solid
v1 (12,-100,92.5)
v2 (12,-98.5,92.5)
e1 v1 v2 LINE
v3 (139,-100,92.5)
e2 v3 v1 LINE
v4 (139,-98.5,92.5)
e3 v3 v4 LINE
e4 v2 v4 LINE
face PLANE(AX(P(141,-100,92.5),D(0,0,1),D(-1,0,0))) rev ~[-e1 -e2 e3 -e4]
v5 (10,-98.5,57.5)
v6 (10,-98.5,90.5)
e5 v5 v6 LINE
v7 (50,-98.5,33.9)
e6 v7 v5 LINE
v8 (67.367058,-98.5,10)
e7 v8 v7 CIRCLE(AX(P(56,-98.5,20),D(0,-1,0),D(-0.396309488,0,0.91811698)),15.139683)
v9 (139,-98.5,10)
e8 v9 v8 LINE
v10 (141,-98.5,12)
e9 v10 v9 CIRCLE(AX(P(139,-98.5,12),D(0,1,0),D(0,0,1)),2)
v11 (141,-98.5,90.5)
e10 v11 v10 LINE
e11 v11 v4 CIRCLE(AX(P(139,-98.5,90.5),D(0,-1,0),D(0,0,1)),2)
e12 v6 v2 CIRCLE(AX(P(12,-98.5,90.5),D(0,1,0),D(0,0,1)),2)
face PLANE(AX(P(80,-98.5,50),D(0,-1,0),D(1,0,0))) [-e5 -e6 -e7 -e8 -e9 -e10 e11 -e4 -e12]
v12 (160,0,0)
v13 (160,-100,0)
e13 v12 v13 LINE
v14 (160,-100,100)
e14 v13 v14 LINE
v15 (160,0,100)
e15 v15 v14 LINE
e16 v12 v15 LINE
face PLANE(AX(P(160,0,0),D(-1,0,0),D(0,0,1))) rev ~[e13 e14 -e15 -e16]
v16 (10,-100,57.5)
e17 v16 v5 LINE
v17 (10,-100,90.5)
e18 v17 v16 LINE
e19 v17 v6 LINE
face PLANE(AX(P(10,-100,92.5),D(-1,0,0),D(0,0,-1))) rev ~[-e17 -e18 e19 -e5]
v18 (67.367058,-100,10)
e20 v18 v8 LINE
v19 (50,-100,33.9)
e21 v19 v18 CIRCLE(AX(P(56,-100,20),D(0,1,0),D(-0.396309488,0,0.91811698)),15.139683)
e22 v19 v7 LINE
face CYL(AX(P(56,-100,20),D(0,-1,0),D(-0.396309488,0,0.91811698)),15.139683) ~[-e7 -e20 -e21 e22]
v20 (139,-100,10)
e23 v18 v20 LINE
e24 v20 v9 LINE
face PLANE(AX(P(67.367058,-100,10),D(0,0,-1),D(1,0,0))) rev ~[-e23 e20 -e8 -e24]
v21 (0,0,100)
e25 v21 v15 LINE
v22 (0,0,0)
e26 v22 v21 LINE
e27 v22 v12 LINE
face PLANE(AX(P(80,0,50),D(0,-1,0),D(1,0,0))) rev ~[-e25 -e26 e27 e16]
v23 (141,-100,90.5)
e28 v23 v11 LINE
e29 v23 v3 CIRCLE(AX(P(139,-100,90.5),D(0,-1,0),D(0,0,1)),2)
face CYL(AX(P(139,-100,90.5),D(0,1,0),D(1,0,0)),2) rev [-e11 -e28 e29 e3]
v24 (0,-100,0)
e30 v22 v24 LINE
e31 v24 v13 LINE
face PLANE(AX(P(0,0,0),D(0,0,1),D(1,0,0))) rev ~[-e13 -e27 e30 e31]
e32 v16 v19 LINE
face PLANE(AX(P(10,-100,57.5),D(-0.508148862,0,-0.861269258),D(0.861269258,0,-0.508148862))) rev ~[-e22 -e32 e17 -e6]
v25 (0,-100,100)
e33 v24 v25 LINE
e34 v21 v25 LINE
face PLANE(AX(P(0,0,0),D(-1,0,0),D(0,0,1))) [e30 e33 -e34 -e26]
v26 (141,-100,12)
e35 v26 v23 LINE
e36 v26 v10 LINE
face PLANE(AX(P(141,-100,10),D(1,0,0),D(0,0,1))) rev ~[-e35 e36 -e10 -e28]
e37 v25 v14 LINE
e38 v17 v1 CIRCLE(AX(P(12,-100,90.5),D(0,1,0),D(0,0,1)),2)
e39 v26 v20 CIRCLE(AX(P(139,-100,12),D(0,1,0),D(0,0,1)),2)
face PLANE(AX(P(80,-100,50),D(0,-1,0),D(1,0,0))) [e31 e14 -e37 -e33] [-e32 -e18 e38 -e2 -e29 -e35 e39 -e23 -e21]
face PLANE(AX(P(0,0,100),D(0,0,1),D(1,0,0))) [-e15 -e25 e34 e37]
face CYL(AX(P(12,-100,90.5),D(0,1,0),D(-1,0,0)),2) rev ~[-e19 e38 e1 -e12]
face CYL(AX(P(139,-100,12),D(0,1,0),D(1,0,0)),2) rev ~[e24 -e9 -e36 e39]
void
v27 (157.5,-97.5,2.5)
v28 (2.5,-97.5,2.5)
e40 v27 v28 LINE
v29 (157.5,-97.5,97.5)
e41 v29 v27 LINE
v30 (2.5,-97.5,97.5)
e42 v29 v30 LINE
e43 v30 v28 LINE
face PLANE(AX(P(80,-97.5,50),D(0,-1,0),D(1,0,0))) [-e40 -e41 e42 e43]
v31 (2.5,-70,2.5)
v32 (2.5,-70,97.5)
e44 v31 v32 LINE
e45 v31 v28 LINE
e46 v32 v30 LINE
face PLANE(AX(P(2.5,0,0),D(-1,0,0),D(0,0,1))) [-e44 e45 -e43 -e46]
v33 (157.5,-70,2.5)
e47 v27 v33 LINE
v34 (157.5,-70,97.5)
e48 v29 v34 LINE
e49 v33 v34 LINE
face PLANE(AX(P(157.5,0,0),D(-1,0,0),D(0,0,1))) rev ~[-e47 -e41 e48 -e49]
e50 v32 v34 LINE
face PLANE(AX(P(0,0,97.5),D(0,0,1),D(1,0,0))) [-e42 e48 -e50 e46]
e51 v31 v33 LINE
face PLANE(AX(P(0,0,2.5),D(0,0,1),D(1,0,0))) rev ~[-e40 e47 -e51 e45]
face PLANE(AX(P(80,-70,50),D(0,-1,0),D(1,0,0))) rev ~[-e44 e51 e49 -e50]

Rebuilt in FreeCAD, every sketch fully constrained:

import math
import FreeCAD as App
import Part
import Sketcher


def edges_at(feature, points):
    """Names of the edges that pass closest to the given points."""
    edges = feature.Shape.Edges
    near = lambda p: min(range(len(edges)), key=lambda i: edges[i].distToShape(Part.Vertex(*p))[0])
    return sorted({f"Edge{near(p) + 1}" for p in points})


def faces_at(feature, points):
    """Names of the faces that lie closest to the given points."""
    faces = feature.Shape.Faces
    near = lambda p: min(range(len(faces)), key=lambda i: faces[i].distToShape(Part.Vertex(*p))[0])
    return sorted({f"Face{near(p) + 1}" for p in points})

doc = App.newDocument("Part")
body = doc.addObject("PartDesign::Body", "Body")

# Sketch on XZ plane
sketch1 = doc.addObject("Sketcher::SketchObject", "Sketch")
body.addObject(sketch1)
sketch1.AttachmentSupport = (doc.XZ_Plane, [""])
sketch1.MapMode = "FlatFace"
sketch1.addGeometry([
    Part.LineSegment(App.Vector(0, 100, 0), App.Vector(0, 0, 0)),
    Part.LineSegment(App.Vector(0, 0, 0), App.Vector(160, 0, 0)),
    Part.LineSegment(App.Vector(160, 0, 0), App.Vector(160, 100, 0)),
    Part.LineSegment(App.Vector(160, 100, 0), App.Vector(0, 100, 0)),
], False)
sketch1.addConstraint([
    Sketcher.Constraint("Coincident", 0, 2, 1, 1),
    Sketcher.Constraint("Coincident", 1, 2, 2, 1),
    Sketcher.Constraint("Coincident", 2, 2, 3, 1),
    Sketcher.Constraint("Coincident", 3, 2, 0, 1),
    Sketcher.Constraint("Vertical", 0),
    Sketcher.Constraint("Horizontal", 1),
    Sketcher.Constraint("Vertical", 2),
    Sketcher.Constraint("Horizontal", 3),
    Sketcher.Constraint("Coincident", 0, 2, -1, 1),
    Sketcher.Constraint("DistanceX", 1, 1, 1, 2, 160.0),
    Sketcher.Constraint("DistanceY", 0, 2, 0, 1, 100.0),
])
pad1 = doc.addObject("PartDesign::Pad", "Pad")
body.addObject(pad1)
pad1.Profile = sketch1
pad1.Length = 100

# Sketch on XZ plane
sketch2 = doc.addObject("Sketcher::SketchObject", "Sketch001")
body.addObject(sketch2)
sketch2.AttachmentSupport = (doc.XZ_Plane, [""])
sketch2.MapMode = "FlatFace"
sketch2.AttachmentOffset = App.Placement(App.Vector(0, 0, 100), App.Rotation())
sketch2.addGeometry([
    Part.LineSegment(App.Vector(141, 10, 0), App.Vector(141, 92.5, 0)),  # 0
    Part.LineSegment(App.Vector(141, 92.5, 0), App.Vector(10, 92.5, 0)),  # 1
    Part.LineSegment(App.Vector(10, 92.5, 0), App.Vector(10, 57.5, 0)),  # 2
    Part.LineSegment(App.Vector(10, 57.5, 0), App.Vector(50, 33.9, 0)),  # 3
    Part.ArcOfCircle(Part.Circle(App.Vector(56, 20, 0), App.Vector(0, 0, 1), 15.139683), math.radians(-41.339224), math.radians(113.347669)),  # 4
    Part.LineSegment(App.Vector(67.367058, 10, 0), App.Vector(141, 10, 0)),  # 5
], False)
sketch2.addConstraint([
    Sketcher.Constraint("Coincident", 0, 2, 1, 1),
    Sketcher.Constraint("Coincident", 1, 2, 2, 1),
    Sketcher.Constraint("Coincident", 2, 2, 3, 1),
    Sketcher.Constraint("Coincident", 3, 2, 4, 2),
    Sketcher.Constraint("Coincident", 4, 1, 5, 1),
    Sketcher.Constraint("Coincident", 5, 2, 0, 1),
    Sketcher.Constraint("Vertical", 0),
    Sketcher.Constraint("Horizontal", 1),
    Sketcher.Constraint("Vertical", 2),
    Sketcher.Constraint("Horizontal", 5),
    Sketcher.Constraint("DistanceX", 1, 2, 1, 1, 131.0),
    Sketcher.Constraint("DistanceY", 2, 2, 2, 1, 35.0),
    Sketcher.Constraint("DistanceY", 0, 1, 0, 2, 82.5),
    Sketcher.Constraint("DistanceX", -1, 1, 4, 3, 56.0),
    Sketcher.Constraint("DistanceY", -1, 1, 4, 3, 20.0),
    Sketcher.Constraint("DistanceX", -1, 1, 0, 2, 141.0),
    Sketcher.Constraint("DistanceX", -1, 1, 3, 2, 50.0),
    Sketcher.Constraint("DistanceY", -1, 1, 4, 1, 10.0),
    Sketcher.Constraint("DistanceY", -1, 1, 3, 2, 33.9),
])
pocket1 = doc.addObject("PartDesign::Pocket", "Pocket")
body.addObject(pocket1)
pocket1.Profile = sketch2
pocket1.Length = 50
doc.recompute()

thickness = doc.addObject("PartDesign::Thickness", "Thickness")
body.addObject(thickness)
thickness.Base = (pocket1, faces_at(pocket1, [
    (10, -75, 75),
    (30, -75, 45.7),
    (68.248, -75, 28.9),
    (104.184, -75, 10),
    (141, -75, 51.25),
    (75.5, -50, 51.25),
    (75.5, -75, 92.5),
]))
thickness.Value = 2.5
thickness.Reversed = True
thickness.Join = "Arc"

# Sketch on XZ plane
sketch3 = doc.addObject("Sketcher::SketchObject", "Sketch002")
body.addObject(sketch3)
sketch3.AttachmentSupport = (doc.XZ_Plane, [""])
sketch3.MapMode = "FlatFace"
sketch3.AttachmentOffset = App.Placement(App.Vector(0, 0, 2.5), App.Rotation())
sketch3.addGeometry([
    Part.LineSegment(App.Vector(2.5, 97.5, 0), App.Vector(2.5, 2.5, 0)),
    Part.LineSegment(App.Vector(2.5, 2.5, 0), App.Vector(157.5, 2.5, 0)),
    Part.LineSegment(App.Vector(157.5, 2.5, 0), App.Vector(157.5, 97.5, 0)),
    Part.LineSegment(App.Vector(157.5, 97.5, 0), App.Vector(2.5, 97.5, 0)),
], False)
sketch3.addConstraint([
    Sketcher.Constraint("Coincident", 0, 2, 1, 1),
    Sketcher.Constraint("Coincident", 1, 2, 2, 1),
    Sketcher.Constraint("Coincident", 2, 2, 3, 1),
    Sketcher.Constraint("Coincident", 3, 2, 0, 1),
    Sketcher.Constraint("Vertical", 0),
    Sketcher.Constraint("Horizontal", 1),
    Sketcher.Constraint("Vertical", 2),
    Sketcher.Constraint("Horizontal", 3),
    Sketcher.Constraint("DistanceX", 1, 1, 1, 2, 155.0),
    Sketcher.Constraint("DistanceY", 0, 2, 0, 1, 95.0),
    Sketcher.Constraint("DistanceX", -1, 1, 0, 2, 2.5),
    Sketcher.Constraint("DistanceY", -1, 1, 0, 2, 2.5),
])
pad2 = doc.addObject("PartDesign::Pad", "Pad001")
body.addObject(pad2)
pad2.Profile = sketch3
pad2.Length = 67.5

# Sketch on XZ plane
sketch4 = doc.addObject("Sketcher::SketchObject", "Sketch003")
body.addObject(sketch4)
sketch4.AttachmentSupport = (doc.XZ_Plane, [""])
sketch4.MapMode = "FlatFace"
sketch4.AttachmentOffset = App.Placement(App.Vector(0, 0, 97.5), App.Rotation())
sketch4.addGeometry([
    Part.LineSegment(App.Vector(5, 95, 0), App.Vector(5, 5, 0)),
    Part.LineSegment(App.Vector(5, 5, 0), App.Vector(155, 5, 0)),
    Part.LineSegment(App.Vector(155, 5, 0), App.Vector(155, 95, 0)),
    Part.LineSegment(App.Vector(155, 95, 0), App.Vector(5, 95, 0)),
], False)
sketch4.addConstraint([
    Sketcher.Constraint("Coincident", 0, 2, 1, 1),
    Sketcher.Constraint("Coincident", 1, 2, 2, 1),
    Sketcher.Constraint("Coincident", 2, 2, 3, 1),
    Sketcher.Constraint("Coincident", 3, 2, 0, 1),
    Sketcher.Constraint("Vertical", 0),
    Sketcher.Constraint("Horizontal", 1),
    Sketcher.Constraint("Vertical", 2),
    Sketcher.Constraint("Horizontal", 3),
    Sketcher.Constraint("DistanceX", 1, 1, 1, 2, 150.0),
    Sketcher.Constraint("DistanceY", 0, 2, 0, 1, 90.0),
    Sketcher.Constraint("DistanceX", -1, 1, 0, 2, 5.0),
    Sketcher.Constraint("DistanceY", -1, 1, 0, 2, 5.0),
])
pad3 = doc.addObject("PartDesign::Pad", "Pad002")
body.addObject(pad3)
pad3.Profile = sketch4
pad3.Length = 1
doc.recompute()

fillet = doc.addObject("PartDesign::Fillet", "Fillet")
body.addObject(fillet)
fillet.Base = (pad3, edges_at(pad3, [(10, -99.25, 92.5), (141, -99.25, 92.5), (141, -99.25, 10)]))
fillet.Radius = 2

doc.recompute()
